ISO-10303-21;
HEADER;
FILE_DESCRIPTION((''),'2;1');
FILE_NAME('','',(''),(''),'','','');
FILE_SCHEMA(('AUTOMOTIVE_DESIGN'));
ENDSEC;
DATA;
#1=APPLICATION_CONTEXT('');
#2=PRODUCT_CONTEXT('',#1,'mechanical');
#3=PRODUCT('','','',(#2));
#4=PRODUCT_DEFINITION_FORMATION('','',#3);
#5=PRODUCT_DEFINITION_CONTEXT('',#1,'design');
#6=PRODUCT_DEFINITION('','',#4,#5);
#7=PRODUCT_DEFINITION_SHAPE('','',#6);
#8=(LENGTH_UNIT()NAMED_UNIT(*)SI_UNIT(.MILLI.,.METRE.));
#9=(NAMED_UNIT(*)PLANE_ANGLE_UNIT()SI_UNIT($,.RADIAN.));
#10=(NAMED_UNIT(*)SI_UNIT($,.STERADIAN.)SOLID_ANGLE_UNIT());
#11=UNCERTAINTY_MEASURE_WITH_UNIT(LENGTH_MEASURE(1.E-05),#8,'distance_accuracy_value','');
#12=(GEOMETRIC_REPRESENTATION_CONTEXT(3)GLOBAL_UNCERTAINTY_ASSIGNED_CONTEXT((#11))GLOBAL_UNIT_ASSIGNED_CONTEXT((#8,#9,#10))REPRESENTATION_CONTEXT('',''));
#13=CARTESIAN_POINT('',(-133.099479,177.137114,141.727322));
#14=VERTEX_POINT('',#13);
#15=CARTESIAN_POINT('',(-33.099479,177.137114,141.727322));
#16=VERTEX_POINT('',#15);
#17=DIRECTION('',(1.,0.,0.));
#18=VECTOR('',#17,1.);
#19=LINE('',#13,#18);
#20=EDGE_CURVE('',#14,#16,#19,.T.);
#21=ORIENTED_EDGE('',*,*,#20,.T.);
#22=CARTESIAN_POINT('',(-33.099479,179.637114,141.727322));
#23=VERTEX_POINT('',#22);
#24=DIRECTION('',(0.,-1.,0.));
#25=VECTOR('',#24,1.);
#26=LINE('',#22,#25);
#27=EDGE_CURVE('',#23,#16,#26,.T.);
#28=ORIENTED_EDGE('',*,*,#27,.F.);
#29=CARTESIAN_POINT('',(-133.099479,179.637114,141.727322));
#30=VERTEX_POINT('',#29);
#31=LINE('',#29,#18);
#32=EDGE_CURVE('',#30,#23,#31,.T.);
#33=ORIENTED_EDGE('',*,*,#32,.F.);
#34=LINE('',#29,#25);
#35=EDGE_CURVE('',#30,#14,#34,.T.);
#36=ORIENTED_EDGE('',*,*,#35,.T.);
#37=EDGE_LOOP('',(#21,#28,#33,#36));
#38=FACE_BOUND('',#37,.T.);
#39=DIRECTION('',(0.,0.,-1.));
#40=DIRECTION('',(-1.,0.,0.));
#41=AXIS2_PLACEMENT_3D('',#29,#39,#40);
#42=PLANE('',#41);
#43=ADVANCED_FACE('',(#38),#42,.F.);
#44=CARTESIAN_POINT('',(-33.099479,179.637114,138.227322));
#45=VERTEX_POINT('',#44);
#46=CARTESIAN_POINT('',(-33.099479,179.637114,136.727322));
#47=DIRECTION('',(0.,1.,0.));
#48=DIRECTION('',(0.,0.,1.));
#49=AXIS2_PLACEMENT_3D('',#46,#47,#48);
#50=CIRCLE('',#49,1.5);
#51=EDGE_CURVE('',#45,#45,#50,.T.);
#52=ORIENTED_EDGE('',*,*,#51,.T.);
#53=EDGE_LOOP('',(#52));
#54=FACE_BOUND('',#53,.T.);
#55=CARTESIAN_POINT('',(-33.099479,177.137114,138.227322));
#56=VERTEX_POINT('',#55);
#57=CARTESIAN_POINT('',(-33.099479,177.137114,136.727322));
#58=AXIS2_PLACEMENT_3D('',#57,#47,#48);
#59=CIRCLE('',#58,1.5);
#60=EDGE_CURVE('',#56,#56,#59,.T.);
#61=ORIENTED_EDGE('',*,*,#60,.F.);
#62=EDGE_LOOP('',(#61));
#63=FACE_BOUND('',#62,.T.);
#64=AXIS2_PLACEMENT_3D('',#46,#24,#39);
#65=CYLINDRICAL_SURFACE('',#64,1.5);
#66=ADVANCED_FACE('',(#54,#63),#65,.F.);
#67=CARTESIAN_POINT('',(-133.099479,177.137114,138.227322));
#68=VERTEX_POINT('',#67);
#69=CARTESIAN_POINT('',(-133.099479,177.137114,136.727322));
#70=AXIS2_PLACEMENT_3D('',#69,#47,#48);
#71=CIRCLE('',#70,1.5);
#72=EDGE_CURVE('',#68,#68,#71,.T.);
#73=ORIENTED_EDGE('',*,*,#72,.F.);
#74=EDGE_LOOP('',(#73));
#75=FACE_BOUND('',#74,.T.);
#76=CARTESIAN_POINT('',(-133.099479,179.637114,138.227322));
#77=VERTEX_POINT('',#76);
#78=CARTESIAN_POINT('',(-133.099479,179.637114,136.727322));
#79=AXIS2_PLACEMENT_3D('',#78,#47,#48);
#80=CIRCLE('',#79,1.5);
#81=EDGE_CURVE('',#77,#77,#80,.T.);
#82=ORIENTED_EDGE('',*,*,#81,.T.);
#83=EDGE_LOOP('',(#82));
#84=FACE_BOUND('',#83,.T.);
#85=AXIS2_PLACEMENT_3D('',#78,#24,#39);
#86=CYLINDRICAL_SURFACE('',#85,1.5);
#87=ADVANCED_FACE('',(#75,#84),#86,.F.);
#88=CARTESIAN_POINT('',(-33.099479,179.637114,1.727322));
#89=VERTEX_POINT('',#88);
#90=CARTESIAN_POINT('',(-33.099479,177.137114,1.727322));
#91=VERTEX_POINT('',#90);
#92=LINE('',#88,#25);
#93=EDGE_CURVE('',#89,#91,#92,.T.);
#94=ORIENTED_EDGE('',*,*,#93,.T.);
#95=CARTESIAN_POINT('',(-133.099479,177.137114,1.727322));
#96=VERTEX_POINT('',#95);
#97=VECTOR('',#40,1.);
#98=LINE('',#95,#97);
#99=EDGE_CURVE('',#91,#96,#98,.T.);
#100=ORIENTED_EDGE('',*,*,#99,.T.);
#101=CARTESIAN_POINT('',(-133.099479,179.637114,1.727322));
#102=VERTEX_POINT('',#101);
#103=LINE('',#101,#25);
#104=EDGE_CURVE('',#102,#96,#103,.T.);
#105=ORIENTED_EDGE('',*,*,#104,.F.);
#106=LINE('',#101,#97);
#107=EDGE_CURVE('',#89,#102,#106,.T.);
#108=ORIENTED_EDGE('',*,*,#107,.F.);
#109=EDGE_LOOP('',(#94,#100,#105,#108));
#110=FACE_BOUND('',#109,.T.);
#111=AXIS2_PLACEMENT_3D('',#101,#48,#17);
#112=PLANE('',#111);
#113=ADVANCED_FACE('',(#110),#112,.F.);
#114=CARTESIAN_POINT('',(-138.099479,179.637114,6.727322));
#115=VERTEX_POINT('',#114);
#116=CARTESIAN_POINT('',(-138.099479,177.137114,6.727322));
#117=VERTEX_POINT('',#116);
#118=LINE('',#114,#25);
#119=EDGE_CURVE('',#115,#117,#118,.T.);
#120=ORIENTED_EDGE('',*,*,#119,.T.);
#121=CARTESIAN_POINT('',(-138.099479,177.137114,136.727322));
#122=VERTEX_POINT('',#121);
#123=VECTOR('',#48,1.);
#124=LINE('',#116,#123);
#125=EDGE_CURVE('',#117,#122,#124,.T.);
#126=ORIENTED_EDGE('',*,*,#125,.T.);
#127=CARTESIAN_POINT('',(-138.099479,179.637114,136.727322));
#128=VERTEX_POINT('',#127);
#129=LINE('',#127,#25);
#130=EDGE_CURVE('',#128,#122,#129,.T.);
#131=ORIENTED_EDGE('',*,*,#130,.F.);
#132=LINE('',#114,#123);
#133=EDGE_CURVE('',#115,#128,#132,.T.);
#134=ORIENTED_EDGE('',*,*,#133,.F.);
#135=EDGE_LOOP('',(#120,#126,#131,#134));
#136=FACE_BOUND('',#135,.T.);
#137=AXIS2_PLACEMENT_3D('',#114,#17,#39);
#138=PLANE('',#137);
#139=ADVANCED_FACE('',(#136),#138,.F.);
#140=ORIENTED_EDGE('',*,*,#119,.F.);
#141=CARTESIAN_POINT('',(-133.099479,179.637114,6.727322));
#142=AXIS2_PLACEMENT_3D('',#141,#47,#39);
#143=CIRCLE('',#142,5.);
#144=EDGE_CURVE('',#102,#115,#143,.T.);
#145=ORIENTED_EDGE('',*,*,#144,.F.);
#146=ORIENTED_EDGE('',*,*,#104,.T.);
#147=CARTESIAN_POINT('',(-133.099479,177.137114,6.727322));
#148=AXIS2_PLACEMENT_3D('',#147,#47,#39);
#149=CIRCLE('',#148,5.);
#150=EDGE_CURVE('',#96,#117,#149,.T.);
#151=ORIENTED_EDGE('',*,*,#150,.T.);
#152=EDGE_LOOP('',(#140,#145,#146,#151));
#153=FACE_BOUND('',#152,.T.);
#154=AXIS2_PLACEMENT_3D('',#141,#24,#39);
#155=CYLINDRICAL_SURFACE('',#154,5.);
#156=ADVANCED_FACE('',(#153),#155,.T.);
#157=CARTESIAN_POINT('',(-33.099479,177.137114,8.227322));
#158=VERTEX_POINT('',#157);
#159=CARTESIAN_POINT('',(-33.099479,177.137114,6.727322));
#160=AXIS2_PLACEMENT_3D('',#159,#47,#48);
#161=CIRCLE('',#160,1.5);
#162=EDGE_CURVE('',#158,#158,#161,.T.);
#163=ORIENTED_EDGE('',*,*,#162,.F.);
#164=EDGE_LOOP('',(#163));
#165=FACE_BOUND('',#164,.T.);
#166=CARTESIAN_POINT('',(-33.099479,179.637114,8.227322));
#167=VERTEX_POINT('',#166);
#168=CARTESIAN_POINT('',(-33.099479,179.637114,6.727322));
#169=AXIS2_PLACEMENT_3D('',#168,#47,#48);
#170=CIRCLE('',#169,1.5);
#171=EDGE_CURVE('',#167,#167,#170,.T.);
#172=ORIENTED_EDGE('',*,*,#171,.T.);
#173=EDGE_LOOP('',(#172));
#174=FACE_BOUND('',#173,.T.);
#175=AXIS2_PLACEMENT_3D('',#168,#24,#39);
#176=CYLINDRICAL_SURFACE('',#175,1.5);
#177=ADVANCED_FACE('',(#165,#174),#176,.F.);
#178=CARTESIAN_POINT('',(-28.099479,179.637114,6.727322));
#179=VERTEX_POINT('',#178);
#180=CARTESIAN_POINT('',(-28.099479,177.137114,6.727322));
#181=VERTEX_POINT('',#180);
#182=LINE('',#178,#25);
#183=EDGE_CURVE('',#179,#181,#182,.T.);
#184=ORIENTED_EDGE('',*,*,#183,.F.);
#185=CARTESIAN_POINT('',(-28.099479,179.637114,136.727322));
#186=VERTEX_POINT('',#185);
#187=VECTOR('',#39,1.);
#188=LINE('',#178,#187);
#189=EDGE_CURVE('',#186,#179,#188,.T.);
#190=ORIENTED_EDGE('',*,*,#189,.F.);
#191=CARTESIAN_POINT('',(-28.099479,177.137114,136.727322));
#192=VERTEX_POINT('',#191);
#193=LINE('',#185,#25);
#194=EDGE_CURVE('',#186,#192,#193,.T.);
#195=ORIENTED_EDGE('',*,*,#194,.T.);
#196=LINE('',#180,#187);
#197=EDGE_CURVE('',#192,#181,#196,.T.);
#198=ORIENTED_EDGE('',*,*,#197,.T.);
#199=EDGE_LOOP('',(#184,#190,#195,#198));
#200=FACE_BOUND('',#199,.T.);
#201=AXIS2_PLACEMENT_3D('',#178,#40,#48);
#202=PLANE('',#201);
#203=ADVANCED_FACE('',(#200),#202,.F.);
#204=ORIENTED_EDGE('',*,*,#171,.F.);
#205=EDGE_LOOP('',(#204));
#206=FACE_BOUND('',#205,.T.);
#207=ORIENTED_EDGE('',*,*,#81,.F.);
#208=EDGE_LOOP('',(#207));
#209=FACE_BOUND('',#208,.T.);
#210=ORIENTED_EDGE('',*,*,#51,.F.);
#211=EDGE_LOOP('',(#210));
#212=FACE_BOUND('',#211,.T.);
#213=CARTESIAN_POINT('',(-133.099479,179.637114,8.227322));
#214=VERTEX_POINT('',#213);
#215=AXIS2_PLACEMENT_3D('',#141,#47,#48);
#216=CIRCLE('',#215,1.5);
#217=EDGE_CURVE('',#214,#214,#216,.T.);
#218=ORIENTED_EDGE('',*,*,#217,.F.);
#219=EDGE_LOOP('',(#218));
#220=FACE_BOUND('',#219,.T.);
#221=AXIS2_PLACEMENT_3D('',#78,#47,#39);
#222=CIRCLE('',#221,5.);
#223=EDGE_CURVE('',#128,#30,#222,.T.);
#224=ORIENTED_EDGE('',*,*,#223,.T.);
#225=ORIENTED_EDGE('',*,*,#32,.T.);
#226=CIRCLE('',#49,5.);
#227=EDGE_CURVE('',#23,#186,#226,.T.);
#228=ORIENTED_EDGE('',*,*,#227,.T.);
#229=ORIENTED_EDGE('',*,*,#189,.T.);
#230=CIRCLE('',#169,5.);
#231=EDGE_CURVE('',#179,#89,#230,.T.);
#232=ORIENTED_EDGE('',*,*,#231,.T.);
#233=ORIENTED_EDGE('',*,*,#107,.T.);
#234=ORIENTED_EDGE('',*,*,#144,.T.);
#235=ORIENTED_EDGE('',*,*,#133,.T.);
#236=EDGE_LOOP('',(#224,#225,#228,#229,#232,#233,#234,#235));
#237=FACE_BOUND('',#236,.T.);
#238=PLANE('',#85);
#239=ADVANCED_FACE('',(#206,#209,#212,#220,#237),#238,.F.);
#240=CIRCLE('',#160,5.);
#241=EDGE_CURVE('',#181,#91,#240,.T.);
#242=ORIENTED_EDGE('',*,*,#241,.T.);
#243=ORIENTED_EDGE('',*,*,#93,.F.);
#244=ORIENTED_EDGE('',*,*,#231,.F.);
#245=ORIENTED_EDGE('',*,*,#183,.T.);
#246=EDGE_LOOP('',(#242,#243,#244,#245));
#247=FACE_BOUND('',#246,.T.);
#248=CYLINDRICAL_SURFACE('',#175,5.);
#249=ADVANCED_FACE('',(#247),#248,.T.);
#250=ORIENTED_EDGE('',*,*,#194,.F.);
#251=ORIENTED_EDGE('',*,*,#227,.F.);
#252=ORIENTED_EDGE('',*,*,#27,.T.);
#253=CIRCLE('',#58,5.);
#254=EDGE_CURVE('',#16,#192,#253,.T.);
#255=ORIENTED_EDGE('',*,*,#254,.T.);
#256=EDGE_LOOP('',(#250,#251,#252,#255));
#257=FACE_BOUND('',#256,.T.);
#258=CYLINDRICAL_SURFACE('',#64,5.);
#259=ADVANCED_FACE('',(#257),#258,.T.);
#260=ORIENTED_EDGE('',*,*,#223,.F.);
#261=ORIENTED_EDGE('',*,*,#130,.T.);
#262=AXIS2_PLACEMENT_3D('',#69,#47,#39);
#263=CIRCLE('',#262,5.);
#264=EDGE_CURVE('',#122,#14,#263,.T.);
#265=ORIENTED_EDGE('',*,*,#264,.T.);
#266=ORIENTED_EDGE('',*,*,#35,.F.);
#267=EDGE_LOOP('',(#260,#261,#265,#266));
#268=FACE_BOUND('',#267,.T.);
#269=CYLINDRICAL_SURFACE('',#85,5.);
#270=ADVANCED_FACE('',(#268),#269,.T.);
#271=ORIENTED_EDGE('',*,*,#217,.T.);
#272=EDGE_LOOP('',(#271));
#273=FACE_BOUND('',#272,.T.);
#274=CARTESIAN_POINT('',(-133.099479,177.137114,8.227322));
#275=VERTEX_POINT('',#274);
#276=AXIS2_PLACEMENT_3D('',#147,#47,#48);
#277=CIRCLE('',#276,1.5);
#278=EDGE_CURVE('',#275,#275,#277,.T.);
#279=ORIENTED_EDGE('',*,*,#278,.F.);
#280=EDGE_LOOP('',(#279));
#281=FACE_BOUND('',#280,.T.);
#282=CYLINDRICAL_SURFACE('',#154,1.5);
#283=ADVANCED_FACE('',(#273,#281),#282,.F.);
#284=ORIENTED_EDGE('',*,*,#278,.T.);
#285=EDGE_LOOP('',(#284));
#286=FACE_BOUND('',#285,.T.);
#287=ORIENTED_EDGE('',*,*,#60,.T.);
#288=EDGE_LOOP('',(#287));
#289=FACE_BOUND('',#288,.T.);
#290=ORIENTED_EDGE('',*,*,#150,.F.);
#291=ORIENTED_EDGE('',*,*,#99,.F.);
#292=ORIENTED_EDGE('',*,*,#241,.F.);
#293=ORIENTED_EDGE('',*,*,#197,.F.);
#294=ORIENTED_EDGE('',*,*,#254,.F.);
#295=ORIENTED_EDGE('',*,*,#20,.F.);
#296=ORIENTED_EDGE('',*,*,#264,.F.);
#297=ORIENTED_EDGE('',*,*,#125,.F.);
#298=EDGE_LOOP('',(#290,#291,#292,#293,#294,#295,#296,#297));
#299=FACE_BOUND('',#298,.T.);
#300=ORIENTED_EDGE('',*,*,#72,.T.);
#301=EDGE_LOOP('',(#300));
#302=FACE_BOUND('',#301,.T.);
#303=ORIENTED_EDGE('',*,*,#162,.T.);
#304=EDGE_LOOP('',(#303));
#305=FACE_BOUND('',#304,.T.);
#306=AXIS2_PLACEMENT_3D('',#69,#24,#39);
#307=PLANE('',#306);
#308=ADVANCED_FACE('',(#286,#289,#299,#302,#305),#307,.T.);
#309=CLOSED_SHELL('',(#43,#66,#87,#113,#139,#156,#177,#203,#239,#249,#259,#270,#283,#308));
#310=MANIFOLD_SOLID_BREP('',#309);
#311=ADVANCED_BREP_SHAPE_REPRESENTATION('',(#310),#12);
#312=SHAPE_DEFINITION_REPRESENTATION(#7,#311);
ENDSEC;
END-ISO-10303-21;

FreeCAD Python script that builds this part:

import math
import FreeCAD as App
import Part
import Sketcher

V = App.Vector
Q = App.Units.Quantity

doc = App.newDocument("Part")
body = doc.addObject("PartDesign::Body", "Body")

sketch1 = body.newObject("Sketcher::SketchObject", "Sketch")
sketch1.AttachmentSupport = (doc.getObject("XZ_Plane"), [""])
sketch1.MapMode = "FlatFace"
sketch1.AttachmentOffset = App.Placement(V(0, 0, -177.137114), App.Rotation())
sketch1.addGeometry(Part.LineSegment(V(-33.1, 1.7, 0), V(-133.1, 1.7, 0)), False)
sketch1.addGeometry(Part.ArcOfCircle(Part.Circle(V(-133.1, 6.7, 0), V(0, 0, 1), 5), math.radians(180), math.radians(270)), False)
sketch1.addGeometry(Part.LineSegment(V(-138.1, 6.7, 0), V(-138.1, 136.7, 0)), False)
sketch1.addGeometry(Part.ArcOfCircle(Part.Circle(V(-133.1, 136.7, 0), V(0, 0, 1), 5), math.radians(90), math.radians(180)), False)
sketch1.addGeometry(Part.LineSegment(V(-133.1, 141.7, 0), V(-33.1, 141.7, 0)), False)
sketch1.addGeometry(Part.ArcOfCircle(Part.Circle(V(-33.1, 136.7, 0), V(0, 0, 1), 5), math.radians(0), math.radians(90)), False)
sketch1.addGeometry(Part.LineSegment(V(-28.1, 136.7, 0), V(-28.1, 6.7, 0)), False)
sketch1.addGeometry(Part.ArcOfCircle(Part.Circle(V(-33.1, 6.7, 0), V(0, 0, 1), 5), math.radians(-90), math.radians(0)), False)
sketch1.addGeometry(Part.Circle(V(-33.1, 136.7, 0), V(0, 0, 1), 1.5), False)
sketch1.addGeometry(Part.Circle(V(-133.1, 136.7, 0), V(0, 0, 1), 1.5), False)
sketch1.addGeometry(Part.Circle(V(-33.1, 6.7, 0), V(0, 0, 1), 1.5), False)
sketch1.addGeometry(Part.Circle(V(-133.1, 6.7, 0), V(0, 0, 1), 1.5), False)
sketch1.addConstraint(Sketcher.Constraint("Tangent", 0, 2, 1, 2))
sketch1.addConstraint(Sketcher.Constraint("Tangent", 1, 1, 2, 1))
sketch1.addConstraint(Sketcher.Constraint("Tangent", 2, 2, 3, 2))
sketch1.addConstraint(Sketcher.Constraint("Tangent", 3, 1, 4, 1))
sketch1.addConstraint(Sketcher.Constraint("Tangent", 4, 2, 5, 2))
sketch1.addConstraint(Sketcher.Constraint("Tangent", 5, 1, 6, 1))
sketch1.addConstraint(Sketcher.Constraint("Tangent", 6, 2, 7, 2))
sketch1.addConstraint(Sketcher.Constraint("Tangent", 7, 1, 0, 1))
sketch1.addConstraint(Sketcher.Constraint("Horizontal", 0))
sketch1.addConstraint(Sketcher.Constraint("Vertical", 2))
sketch1.addConstraint(Sketcher.Constraint("Horizontal", 4))
sketch1.addConstraint(Sketcher.Constraint("Vertical", 6))
sketch1.addConstraint(Sketcher.Constraint("Coincident", 8, 3, 5, 3))
sketch1.addConstraint(Sketcher.Constraint("Coincident", 9, 3, 3, 3))
sketch1.addConstraint(Sketcher.Constraint("Coincident", 10, 3, 7, 3))
sketch1.addConstraint(Sketcher.Constraint("Coincident", 11, 3, 1, 3))
sketch1.addConstraint(Sketcher.Constraint("Equal", 1, 3))
sketch1.addConstraint(Sketcher.Constraint("Equal", 3, 5))
sketch1.addConstraint(Sketcher.Constraint("Equal", 5, 7))
sketch1.addConstraint(Sketcher.Constraint("Equal", 8, 9))
sketch1.addConstraint(Sketcher.Constraint("Equal", 9, 10))
sketch1.addConstraint(Sketcher.Constraint("Equal", 10, 11))
sketch1.addConstraint(Sketcher.Constraint("Diameter", 8, Q("3 mm")))
sketch1.addConstraint(Sketcher.Constraint("Radius", 1, Q("5 mm")))
sketch1.addConstraint(Sketcher.Constraint("DistanceX", 0, 2, 0, 1, Q("100 mm")))
sketch1.addConstraint(Sketcher.Constraint("DistanceY", 2, 1, 2, 2, Q("130 mm")))
sketch1.addConstraint(Sketcher.Constraint("DistanceX", 1, 3, -1, 1, Q("133.099479 mm")))
sketch1.addConstraint(Sketcher.Constraint("DistanceY", -1, 1, 1, 3, Q("6.727322 mm")))
pad1 = body.newObject("PartDesign::Pad", "Pad")
pad1.Profile = sketch1
pad1.Length = 2.5
pad1.Reversed = True

doc.recompute()
